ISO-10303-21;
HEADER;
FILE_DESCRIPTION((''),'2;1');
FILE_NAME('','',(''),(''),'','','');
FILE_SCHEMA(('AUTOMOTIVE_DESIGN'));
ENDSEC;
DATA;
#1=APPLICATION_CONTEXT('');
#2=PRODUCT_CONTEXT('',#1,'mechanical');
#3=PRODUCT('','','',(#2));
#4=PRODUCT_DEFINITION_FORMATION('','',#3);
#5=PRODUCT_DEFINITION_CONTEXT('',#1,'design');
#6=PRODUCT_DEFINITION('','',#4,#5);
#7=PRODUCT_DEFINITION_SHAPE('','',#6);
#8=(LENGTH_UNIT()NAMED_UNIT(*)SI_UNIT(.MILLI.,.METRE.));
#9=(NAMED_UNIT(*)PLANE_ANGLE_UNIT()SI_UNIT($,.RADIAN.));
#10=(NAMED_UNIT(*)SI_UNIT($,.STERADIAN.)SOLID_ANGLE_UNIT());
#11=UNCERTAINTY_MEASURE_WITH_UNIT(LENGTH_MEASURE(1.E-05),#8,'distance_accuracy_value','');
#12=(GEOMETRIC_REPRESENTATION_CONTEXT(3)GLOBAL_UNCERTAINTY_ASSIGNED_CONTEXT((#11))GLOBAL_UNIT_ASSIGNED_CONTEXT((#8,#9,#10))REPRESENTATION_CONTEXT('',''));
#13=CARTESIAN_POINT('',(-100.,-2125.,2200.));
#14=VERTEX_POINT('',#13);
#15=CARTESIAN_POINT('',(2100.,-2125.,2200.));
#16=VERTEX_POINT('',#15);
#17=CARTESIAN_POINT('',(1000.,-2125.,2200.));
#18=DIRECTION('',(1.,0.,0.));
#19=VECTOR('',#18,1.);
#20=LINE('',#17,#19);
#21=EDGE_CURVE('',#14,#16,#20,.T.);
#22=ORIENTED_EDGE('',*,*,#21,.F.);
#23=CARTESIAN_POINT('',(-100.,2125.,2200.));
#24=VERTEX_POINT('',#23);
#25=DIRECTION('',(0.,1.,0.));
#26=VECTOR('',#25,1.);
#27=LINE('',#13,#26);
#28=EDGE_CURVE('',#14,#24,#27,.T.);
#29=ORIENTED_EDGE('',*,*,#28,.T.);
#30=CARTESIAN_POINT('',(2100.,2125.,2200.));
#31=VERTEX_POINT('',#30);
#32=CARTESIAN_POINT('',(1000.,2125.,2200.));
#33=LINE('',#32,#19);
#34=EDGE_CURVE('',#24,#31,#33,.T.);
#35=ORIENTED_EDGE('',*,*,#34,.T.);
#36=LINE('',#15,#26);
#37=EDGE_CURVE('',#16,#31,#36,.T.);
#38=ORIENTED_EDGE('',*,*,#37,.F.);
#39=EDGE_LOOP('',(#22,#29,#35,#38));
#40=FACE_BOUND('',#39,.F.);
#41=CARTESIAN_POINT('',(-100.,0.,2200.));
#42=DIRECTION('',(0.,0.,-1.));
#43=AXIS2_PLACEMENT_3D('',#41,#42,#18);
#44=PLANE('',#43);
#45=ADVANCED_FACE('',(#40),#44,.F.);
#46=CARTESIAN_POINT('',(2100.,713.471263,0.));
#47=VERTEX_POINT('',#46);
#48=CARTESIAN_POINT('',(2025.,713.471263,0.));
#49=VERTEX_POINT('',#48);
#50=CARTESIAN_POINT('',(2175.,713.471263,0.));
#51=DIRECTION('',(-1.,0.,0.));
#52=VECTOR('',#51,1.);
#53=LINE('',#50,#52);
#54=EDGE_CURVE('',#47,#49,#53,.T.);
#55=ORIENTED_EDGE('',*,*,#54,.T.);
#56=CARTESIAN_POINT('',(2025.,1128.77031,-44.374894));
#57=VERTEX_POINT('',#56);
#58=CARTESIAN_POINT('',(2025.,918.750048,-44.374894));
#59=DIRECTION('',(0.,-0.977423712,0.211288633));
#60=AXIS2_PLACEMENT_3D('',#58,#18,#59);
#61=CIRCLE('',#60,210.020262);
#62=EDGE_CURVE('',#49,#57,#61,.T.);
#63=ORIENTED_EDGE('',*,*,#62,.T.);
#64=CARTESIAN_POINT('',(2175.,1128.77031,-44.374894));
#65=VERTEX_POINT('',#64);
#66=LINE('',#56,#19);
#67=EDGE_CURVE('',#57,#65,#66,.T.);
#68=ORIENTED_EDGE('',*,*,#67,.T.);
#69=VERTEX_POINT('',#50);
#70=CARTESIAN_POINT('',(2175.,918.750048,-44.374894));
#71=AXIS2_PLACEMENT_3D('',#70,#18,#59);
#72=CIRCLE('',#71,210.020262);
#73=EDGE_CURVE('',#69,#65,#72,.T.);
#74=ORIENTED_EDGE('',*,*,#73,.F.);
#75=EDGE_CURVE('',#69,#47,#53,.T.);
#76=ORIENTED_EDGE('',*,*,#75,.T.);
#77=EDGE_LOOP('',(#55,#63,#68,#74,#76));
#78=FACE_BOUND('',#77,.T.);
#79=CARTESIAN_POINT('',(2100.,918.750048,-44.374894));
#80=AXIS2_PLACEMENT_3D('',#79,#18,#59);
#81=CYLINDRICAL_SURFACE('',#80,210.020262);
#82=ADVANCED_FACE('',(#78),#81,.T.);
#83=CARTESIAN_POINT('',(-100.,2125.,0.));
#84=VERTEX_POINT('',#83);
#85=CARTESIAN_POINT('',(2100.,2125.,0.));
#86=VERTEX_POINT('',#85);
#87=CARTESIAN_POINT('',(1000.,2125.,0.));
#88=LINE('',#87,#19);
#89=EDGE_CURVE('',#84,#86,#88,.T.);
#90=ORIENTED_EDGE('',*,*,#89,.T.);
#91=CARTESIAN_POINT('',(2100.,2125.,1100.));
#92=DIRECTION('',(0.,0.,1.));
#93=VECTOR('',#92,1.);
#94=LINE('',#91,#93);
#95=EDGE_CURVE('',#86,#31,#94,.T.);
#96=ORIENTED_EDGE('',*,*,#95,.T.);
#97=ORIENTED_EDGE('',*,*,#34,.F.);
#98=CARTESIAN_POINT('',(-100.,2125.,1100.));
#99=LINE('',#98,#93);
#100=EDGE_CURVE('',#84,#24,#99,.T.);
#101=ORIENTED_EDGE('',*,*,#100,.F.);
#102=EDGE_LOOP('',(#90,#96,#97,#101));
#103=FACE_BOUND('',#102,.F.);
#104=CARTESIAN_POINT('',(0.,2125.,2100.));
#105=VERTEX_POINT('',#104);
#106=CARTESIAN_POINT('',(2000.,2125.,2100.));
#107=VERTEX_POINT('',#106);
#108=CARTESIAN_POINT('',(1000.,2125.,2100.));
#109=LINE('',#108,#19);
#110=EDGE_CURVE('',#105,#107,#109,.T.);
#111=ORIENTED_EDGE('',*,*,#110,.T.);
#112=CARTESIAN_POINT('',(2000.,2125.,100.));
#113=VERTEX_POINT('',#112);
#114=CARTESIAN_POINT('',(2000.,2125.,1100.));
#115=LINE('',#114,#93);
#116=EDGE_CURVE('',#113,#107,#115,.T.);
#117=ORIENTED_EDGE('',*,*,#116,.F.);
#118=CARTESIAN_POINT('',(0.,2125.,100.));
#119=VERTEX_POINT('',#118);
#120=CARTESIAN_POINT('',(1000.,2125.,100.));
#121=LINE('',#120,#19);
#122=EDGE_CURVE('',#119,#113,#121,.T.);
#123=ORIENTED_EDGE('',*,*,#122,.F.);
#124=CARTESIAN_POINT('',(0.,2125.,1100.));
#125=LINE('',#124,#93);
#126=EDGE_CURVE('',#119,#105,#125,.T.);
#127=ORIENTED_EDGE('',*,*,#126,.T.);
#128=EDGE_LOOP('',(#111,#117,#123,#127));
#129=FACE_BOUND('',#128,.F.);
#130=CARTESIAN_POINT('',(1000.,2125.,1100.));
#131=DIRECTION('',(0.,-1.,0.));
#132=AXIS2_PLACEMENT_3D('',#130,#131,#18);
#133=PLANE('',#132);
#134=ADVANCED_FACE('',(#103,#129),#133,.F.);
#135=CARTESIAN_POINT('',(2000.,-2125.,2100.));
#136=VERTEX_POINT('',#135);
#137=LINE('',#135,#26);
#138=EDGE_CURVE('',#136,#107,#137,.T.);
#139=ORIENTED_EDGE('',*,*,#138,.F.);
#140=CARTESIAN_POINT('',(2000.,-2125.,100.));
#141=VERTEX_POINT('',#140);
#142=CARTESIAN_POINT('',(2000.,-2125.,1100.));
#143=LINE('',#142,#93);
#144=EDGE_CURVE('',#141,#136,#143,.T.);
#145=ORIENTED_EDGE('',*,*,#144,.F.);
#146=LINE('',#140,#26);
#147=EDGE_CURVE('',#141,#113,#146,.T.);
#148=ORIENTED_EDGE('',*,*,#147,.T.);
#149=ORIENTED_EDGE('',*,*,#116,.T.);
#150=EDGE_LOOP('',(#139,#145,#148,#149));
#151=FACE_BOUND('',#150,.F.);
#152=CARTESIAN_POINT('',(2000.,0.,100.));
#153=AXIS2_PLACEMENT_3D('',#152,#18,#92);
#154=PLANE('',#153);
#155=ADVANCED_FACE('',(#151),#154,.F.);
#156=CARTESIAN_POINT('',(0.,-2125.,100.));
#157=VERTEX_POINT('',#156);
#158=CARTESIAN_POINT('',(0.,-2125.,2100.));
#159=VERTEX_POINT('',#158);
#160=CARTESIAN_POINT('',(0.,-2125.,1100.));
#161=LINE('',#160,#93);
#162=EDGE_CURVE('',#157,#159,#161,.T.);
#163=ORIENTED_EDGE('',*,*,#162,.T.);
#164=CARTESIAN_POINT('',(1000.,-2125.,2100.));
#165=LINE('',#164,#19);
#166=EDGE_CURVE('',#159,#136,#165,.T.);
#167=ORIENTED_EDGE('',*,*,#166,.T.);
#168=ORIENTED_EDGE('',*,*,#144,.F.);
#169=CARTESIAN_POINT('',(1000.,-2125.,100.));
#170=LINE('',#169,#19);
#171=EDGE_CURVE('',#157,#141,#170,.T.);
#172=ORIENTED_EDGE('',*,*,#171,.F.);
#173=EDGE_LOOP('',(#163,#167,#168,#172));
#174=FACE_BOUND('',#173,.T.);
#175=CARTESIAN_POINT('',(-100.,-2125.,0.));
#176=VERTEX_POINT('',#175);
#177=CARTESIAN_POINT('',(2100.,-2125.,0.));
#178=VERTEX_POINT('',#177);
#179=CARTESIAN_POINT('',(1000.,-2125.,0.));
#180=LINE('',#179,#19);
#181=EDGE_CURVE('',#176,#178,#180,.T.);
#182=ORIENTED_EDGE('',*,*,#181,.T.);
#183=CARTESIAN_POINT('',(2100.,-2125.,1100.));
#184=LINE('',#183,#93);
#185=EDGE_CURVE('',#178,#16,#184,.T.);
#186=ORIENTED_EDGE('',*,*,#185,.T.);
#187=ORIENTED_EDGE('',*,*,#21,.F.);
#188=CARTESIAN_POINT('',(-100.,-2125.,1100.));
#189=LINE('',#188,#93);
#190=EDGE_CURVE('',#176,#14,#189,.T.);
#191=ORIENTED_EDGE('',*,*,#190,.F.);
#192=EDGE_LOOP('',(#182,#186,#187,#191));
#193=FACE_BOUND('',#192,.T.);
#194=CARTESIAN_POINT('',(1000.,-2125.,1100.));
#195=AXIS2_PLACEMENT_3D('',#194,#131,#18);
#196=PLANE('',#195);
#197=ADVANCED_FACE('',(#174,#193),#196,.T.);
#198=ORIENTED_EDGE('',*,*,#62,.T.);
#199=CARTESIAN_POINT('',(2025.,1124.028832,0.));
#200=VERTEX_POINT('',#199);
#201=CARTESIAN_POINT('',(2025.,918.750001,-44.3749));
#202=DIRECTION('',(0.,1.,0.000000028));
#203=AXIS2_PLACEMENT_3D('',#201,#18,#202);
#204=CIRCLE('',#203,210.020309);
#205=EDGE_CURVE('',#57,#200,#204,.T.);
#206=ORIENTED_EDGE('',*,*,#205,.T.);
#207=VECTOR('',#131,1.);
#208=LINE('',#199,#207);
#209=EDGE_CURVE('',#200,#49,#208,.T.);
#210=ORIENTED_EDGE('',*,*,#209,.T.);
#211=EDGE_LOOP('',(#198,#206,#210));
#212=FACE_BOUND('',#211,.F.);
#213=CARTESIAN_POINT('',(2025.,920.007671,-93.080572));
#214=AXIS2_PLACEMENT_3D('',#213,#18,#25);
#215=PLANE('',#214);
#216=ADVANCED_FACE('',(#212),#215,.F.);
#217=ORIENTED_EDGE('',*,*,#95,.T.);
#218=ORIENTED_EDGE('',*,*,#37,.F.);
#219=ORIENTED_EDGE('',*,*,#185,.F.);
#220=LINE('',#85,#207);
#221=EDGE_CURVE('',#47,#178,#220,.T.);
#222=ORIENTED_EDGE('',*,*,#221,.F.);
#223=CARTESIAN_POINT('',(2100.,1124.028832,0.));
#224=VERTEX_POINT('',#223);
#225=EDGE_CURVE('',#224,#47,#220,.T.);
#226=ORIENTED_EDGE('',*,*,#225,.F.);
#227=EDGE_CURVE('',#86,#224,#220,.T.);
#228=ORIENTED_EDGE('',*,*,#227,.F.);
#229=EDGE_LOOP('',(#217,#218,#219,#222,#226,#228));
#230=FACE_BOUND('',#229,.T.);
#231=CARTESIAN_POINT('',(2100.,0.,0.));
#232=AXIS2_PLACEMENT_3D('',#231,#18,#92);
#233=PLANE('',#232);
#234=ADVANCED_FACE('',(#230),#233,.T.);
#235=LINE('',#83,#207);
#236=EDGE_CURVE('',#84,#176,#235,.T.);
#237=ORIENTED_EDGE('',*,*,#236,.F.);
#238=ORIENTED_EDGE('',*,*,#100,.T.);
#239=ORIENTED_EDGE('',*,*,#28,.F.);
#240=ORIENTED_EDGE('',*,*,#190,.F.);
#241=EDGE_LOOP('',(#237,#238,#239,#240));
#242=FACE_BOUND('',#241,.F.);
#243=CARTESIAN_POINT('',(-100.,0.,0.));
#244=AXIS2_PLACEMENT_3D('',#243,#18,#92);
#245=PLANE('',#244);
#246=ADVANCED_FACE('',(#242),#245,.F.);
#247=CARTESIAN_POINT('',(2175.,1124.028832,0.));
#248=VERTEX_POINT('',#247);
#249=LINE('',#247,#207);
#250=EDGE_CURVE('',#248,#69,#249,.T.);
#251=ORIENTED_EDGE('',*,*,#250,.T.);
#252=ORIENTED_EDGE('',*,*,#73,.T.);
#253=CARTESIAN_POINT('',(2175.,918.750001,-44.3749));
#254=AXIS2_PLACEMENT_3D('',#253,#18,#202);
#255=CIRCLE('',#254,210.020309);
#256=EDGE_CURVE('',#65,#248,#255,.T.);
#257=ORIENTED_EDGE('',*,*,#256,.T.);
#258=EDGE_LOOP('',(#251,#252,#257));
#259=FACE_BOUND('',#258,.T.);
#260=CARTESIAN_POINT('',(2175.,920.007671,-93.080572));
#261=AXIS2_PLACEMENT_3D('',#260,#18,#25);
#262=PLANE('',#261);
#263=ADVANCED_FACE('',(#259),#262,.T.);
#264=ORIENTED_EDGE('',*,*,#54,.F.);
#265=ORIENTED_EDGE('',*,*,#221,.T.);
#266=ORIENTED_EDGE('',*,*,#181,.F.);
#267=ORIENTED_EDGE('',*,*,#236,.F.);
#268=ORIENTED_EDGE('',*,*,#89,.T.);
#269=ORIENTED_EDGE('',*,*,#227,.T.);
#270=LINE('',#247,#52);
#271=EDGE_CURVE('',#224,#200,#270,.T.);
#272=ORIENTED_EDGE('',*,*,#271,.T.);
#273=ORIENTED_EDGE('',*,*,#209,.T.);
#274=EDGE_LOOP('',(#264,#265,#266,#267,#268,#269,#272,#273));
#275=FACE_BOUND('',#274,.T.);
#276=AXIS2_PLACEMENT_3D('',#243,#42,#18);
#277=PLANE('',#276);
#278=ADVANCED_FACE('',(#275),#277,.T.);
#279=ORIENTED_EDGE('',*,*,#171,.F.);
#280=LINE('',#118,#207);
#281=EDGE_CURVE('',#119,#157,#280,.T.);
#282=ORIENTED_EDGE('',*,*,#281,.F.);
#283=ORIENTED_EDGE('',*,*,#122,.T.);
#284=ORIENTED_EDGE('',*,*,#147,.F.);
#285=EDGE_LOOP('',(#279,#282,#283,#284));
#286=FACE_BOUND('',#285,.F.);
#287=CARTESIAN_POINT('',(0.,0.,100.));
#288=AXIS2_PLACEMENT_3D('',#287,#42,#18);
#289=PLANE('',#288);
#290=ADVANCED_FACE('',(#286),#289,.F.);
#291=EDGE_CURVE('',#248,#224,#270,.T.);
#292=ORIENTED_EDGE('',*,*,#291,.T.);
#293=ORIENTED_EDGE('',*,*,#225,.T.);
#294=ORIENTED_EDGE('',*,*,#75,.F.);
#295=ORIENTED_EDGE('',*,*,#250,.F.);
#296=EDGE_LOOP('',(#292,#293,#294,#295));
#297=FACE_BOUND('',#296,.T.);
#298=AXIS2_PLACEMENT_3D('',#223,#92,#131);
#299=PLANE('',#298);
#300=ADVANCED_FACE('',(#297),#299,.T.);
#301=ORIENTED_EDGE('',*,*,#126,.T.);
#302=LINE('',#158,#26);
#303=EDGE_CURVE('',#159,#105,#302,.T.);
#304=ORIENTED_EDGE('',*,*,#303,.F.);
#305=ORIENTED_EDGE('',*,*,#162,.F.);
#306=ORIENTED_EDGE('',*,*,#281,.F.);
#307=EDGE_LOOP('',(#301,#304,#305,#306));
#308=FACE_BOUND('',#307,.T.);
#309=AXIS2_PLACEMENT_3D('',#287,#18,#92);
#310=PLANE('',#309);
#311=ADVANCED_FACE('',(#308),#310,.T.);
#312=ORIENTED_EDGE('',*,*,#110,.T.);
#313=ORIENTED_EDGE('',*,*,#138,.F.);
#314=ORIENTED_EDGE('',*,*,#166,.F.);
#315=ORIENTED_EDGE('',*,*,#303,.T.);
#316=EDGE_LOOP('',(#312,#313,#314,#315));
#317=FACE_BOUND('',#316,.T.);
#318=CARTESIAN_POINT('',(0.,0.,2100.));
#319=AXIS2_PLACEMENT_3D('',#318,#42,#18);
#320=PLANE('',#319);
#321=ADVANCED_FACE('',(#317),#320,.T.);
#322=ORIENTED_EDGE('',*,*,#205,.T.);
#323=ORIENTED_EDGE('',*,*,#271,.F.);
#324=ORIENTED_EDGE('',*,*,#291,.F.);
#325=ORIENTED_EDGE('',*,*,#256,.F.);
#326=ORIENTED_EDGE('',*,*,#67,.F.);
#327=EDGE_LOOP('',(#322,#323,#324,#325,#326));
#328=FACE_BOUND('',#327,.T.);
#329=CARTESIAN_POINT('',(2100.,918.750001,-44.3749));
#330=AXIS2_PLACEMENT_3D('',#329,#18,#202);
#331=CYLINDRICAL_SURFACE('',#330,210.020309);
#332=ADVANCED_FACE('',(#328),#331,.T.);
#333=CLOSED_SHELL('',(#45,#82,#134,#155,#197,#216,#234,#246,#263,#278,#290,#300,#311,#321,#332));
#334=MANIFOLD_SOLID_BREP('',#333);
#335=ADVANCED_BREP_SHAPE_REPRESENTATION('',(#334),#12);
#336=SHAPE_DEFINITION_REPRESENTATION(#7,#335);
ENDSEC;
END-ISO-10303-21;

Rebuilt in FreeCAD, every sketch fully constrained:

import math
import FreeCAD as App
import Part
import Sketcher
Q = App.Units.Quantity


def add_polygon(sketch, points):
    """Adds a closed chain of lines whose ends are joined by coincident constraints."""
    first, n = sketch.GeometryCount, len(points)
    for a, b in zip(points, points[1:] + points[:1]):
        sketch.addGeometry(Part.LineSegment(App.Vector(*a, 0), App.Vector(*b, 0)), False)
    for i in range(n):
        sketch.addConstraint(Sketcher.Constraint("Coincident", first + i, 2, first + (i + 1) % n, 1))

doc = App.newDocument("Part")
body = doc.addObject("PartDesign::Body", "Body")

# Sketch on XZ plane
sketch1 = body.newObject("Sketcher::SketchObject", "Sketch")
sketch1.AttachmentSupport = (doc.getObject("XZ_Plane"), [""])
sketch1.MapMode = "FlatFace"
add_polygon(sketch1, [(-100, 2200), (-100, 0), (2100, 0), (2100, 2200)])  # lines 0-3
add_polygon(sketch1, [(2000, 100), (0, 100), (0, 2100), (2000, 2100)])  # lines 4-7
sketch1.addConstraint(Sketcher.Constraint("Vertical", 0))
sketch1.addConstraint(Sketcher.Constraint("Horizontal", 1))
sketch1.addConstraint(Sketcher.Constraint("Vertical", 2))
sketch1.addConstraint(Sketcher.Constraint("Horizontal", 3))
sketch1.addConstraint(Sketcher.Constraint("Horizontal", 4))
sketch1.addConstraint(Sketcher.Constraint("Vertical", 5))
sketch1.addConstraint(Sketcher.Constraint("Horizontal", 6))
sketch1.addConstraint(Sketcher.Constraint("Vertical", 7))
sketch1.addConstraint(Sketcher.Constraint("PointOnObject", 0, 2, -1))
sketch1.addConstraint(Sketcher.Constraint("PointOnObject", 4, 2, -2))
sketch1.addConstraint(Sketcher.Constraint("Equal", 3, 0))
sketch1.addConstraint(Sketcher.Constraint("Equal", 6, 5))
sketch1.addConstraint(Sketcher.Constraint("DistanceX", 1, 1, 1, 2, Q("2200 mm")))
sketch1.addConstraint(Sketcher.Constraint("DistanceX", 4, 2, 4, 1, Q("2000 mm")))
sketch1.addConstraint(Sketcher.Constraint("DistanceX", 0, 2, -1, 1, Q("100 mm")))
sketch1.addConstraint(Sketcher.Constraint("DistanceY", -1, 1, 4, 2, Q("100 mm")))
pad1 = body.newObject("PartDesign::Pad", "Pad")
pad1.Profile = sketch1
pad1.Length = 4250
pad1.Midplane = True

# Sketch on YZ plane
sketch2 = body.newObject("Sketcher::SketchObject", "Sketch001")
sketch2.AttachmentSupport = (doc.getObject("YZ_Plane"), [""])
sketch2.MapMode = "FlatFace"
sketch2.AttachmentOffset = App.Placement(App.Vector(0, 0, 2100), App.Rotation())
sketch2.addGeometry(Part.ArcOfCircle(Part.Circle(App.Vector(919, -44, 0), App.Vector(0, 0, 1), 210), math.radians(168), math.radians(360)), False)
sketch2.addGeometry(Part.ArcOfCircle(Part.Circle(App.Vector(919, -44, 0), App.Vector(0, 0, 1), 210), math.radians(0), math.radians(12.2)), False)
sketch2.addGeometry(Part.LineSegment(App.Vector(1124, 0, 0), App.Vector(713, 0, 0)), False)
sketch2.addConstraint(Sketcher.Constraint("Tangent", 0, 2, 1, 1))
sketch2.addConstraint(Sketcher.Constraint("Coincident", 1, 2, 2, 1))
sketch2.addConstraint(Sketcher.Constraint("Coincident", 2, 2, 0, 1))
sketch2.addConstraint(Sketcher.Constraint("Horizontal", 2))
sketch2.addConstraint(Sketcher.Constraint("PointOnObject", 1, 2, -1))
sketch2.addConstraint(Sketcher.Constraint("DistanceX", -1, 1, 1, 3, Q("918.750001 mm")))
sketch2.addConstraint(Sketcher.Constraint("Radius", 1, Q("210.020309 mm")))
sketch2.addConstraint(Sketcher.Constraint("Radius", 0, Q("210.020262 mm")))
sketch2.addConstraint(Sketcher.Constraint("DistanceX", 2, 2, 2, 1, Q("410.557569 mm")))
sketch2.addConstraint(Sketcher.Constraint("DistanceY", 0, 2, -1, 1, Q("44.374894 mm")))
pad2 = body.newObject("PartDesign::Pad", "Pad001")
pad2.Profile = sketch2
pad2.Length = 150
pad2.Midplane = True

doc.recompute()
